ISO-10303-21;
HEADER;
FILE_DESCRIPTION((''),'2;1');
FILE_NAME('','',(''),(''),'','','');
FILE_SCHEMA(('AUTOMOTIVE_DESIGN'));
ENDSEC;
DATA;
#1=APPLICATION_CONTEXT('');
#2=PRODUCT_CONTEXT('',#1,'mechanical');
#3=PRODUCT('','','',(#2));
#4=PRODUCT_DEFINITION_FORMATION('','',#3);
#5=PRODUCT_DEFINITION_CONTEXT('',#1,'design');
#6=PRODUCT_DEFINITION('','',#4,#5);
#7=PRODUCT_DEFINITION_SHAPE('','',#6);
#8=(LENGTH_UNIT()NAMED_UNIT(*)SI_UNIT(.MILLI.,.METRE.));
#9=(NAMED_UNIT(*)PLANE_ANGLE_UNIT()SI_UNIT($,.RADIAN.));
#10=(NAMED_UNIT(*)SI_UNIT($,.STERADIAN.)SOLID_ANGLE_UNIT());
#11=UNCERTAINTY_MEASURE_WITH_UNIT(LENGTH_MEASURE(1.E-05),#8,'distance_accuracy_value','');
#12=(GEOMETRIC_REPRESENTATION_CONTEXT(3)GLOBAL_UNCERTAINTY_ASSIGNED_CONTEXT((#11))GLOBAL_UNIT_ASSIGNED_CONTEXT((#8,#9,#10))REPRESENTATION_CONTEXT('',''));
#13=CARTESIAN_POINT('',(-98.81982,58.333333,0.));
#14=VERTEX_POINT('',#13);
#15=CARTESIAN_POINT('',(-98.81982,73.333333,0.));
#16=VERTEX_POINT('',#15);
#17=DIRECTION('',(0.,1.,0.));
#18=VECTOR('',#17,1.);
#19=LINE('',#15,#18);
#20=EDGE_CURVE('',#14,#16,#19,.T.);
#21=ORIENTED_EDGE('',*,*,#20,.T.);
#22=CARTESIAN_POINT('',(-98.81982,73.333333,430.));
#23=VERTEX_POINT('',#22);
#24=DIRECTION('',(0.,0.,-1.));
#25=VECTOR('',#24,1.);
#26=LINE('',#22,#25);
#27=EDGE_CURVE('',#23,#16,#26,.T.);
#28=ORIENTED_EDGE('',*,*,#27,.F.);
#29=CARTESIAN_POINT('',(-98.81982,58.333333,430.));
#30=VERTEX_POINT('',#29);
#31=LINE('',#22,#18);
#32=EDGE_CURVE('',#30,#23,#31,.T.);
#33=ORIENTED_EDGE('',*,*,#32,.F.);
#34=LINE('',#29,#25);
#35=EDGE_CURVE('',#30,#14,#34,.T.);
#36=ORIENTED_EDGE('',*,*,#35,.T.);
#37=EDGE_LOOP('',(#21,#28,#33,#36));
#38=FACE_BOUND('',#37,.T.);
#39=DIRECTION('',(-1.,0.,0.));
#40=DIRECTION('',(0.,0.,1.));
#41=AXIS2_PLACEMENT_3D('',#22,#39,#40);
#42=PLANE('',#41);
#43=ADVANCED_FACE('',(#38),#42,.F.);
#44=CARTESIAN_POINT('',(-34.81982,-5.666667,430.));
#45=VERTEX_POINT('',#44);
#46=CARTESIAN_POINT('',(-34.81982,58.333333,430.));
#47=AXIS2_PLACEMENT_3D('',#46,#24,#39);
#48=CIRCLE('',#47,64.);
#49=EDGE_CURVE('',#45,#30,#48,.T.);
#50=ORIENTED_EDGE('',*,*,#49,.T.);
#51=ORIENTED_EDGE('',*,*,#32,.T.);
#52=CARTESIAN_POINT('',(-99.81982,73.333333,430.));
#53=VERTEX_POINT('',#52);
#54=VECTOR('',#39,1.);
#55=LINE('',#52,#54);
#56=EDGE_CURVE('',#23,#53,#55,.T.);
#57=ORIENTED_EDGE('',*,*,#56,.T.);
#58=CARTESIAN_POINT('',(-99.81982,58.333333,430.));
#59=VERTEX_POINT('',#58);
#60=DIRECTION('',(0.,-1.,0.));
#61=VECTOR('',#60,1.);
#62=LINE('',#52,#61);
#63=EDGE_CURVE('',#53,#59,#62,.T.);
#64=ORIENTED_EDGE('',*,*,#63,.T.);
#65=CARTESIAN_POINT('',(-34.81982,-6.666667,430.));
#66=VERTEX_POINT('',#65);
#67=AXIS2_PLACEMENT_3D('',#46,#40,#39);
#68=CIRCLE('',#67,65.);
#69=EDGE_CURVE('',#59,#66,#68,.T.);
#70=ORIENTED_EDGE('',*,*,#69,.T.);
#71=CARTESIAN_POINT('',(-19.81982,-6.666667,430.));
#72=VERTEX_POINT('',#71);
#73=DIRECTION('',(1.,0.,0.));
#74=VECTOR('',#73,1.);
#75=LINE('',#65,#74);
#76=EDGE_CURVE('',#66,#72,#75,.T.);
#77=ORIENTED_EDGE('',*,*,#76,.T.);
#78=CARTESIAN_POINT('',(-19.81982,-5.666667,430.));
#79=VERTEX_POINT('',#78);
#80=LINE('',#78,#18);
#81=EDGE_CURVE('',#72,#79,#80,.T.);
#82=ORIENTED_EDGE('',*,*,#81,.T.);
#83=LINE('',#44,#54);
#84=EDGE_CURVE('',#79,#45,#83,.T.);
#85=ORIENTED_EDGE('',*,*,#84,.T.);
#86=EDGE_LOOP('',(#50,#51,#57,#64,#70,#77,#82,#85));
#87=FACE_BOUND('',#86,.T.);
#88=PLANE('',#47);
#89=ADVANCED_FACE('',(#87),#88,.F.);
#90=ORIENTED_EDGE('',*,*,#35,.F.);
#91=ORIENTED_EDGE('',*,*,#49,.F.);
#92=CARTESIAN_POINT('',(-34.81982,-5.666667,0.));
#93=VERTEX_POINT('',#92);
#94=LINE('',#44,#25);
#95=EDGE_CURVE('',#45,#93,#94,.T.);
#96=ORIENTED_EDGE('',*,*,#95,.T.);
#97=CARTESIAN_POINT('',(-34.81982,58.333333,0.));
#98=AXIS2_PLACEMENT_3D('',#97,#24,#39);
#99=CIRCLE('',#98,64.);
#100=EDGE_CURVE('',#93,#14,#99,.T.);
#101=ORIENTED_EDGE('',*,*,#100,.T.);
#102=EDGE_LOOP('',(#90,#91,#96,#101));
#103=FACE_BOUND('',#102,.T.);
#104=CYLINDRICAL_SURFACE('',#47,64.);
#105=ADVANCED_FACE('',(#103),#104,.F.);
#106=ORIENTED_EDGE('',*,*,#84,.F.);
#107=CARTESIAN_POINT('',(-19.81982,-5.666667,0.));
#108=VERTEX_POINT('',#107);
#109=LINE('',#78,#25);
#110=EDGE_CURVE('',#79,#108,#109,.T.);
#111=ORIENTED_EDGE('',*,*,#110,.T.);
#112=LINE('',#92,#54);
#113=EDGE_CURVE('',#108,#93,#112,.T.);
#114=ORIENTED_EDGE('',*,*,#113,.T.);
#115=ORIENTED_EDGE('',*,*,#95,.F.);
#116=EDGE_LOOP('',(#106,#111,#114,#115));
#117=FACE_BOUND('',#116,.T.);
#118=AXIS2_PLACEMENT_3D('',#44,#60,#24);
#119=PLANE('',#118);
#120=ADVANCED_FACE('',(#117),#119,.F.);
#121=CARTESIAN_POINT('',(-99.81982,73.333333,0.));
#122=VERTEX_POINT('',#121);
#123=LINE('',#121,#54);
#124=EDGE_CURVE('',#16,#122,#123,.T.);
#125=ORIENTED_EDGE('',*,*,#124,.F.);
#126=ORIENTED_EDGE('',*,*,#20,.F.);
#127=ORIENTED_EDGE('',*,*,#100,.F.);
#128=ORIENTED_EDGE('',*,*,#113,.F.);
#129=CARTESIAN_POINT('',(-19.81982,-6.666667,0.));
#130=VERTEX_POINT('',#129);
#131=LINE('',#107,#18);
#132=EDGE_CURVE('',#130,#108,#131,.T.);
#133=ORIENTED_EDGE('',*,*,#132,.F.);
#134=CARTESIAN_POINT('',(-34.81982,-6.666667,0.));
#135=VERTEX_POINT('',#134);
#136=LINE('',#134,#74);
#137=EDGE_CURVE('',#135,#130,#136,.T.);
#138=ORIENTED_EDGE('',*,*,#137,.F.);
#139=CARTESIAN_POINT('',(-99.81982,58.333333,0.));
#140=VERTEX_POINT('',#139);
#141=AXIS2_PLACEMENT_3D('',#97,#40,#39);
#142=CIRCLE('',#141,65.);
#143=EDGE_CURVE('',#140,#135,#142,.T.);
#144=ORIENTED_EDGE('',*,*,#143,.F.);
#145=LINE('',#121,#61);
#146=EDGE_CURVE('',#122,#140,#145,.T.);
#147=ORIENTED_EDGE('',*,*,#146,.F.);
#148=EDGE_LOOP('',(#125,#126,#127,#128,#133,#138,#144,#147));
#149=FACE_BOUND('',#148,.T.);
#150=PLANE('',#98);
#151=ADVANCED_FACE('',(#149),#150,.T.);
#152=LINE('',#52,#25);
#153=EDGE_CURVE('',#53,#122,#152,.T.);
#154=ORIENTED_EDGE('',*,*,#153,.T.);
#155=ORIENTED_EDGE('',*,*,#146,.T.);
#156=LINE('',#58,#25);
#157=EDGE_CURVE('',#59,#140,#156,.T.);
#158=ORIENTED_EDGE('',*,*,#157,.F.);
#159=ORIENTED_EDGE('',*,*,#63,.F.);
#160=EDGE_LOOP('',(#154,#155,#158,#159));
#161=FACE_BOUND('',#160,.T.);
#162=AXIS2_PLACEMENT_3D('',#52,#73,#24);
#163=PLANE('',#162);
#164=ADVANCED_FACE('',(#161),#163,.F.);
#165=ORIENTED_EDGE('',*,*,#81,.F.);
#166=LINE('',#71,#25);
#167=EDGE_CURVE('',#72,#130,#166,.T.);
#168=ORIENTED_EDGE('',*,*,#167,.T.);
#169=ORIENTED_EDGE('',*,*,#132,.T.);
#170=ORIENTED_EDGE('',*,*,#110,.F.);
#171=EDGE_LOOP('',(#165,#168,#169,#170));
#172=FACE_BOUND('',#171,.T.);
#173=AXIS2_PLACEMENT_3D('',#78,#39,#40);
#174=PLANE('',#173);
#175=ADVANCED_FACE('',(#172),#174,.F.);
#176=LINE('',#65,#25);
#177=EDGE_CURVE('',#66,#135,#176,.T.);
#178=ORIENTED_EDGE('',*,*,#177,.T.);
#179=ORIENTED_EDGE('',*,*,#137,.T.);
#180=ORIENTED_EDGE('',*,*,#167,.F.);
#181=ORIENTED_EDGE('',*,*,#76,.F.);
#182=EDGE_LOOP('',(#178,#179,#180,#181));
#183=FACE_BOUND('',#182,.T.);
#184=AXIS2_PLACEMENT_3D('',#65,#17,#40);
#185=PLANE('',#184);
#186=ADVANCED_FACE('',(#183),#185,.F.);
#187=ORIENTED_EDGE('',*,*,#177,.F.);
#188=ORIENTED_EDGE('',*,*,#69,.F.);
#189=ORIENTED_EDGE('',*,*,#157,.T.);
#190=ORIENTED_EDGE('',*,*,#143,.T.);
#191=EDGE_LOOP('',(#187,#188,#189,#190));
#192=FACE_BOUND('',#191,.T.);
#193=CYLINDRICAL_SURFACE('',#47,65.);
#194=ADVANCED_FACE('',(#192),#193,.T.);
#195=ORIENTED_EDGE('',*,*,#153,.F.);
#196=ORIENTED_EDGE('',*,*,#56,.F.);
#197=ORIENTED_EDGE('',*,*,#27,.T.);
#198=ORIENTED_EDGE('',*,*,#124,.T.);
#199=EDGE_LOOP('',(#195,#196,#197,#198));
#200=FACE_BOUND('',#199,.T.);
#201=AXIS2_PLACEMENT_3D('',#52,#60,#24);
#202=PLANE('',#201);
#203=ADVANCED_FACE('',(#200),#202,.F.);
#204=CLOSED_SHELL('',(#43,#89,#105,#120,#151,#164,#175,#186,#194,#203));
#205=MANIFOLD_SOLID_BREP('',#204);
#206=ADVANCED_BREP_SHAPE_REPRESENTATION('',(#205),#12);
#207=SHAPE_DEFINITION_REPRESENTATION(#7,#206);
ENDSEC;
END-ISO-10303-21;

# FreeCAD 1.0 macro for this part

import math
import FreeCAD as App
import Part
import Sketcher
Q = App.Units.Quantity

doc = App.newDocument("Part")
body = doc.addObject("PartDesign::Body", "Body")

sketch1 = body.newObject("Sketcher::SketchObject", "Sketch")
sketch1.AttachmentSupport = (doc.getObject("XY_Plane"), [""])
sketch1.MapMode = "FlatFace"
sketch1.addGeometry([
    Part.LineSegment(App.Vector(-99.8, 73.3, 0), App.Vector(-99.8, 58.3, 0)),
    Part.ArcOfCircle(Part.Circle(App.Vector(-34.8, 58.3, 0), App.Vector(0, 0, 1), 65), math.radians(180), math.radians(270)),
    Part.LineSegment(App.Vector(-34.8, -6.7, 0), App.Vector(-19.8, -6.7, 0)),
    Part.LineSegment(App.Vector(-19.8, -6.7, 0), App.Vector(-19.8, -5.7, 0)),
    Part.LineSegment(App.Vector(-19.8, -5.7, 0), App.Vector(-34.8, -5.7, 0)),
    Part.ArcOfCircle(Part.Circle(App.Vector(-34.8, 58.3, 0), App.Vector(0, 0, 1), 64), math.radians(180), math.radians(270)),
    Part.LineSegment(App.Vector(-98.8, 58.3, 0), App.Vector(-98.8, 73.3, 0)),
    Part.LineSegment(App.Vector(-98.8, 73.3, 0), App.Vector(-99.8, 73.3, 0)),
], False)
sketch1.addConstraint([
    Sketcher.Constraint("Tangent", 0, 2, 1, 1),
    Sketcher.Constraint("Tangent", 1, 2, 2, 1),
    Sketcher.Constraint("Coincident", 2, 2, 3, 1),
    Sketcher.Constraint("Coincident", 3, 2, 4, 1),
    Sketcher.Constraint("Tangent", 4, 2, 5, 2),
    Sketcher.Constraint("Tangent", 5, 1, 6, 1),
    Sketcher.Constraint("Coincident", 6, 2, 7, 1),
    Sketcher.Constraint("Coincident", 7, 2, 0, 1),
    Sketcher.Constraint("Vertical", 0),
    Sketcher.Constraint("Horizontal", 2),
    Sketcher.Constraint("Vertical", 3),
    Sketcher.Constraint("Horizontal", 4),
    Sketcher.Constraint("Vertical", 6),
    Sketcher.Constraint("Horizontal", 7),
    Sketcher.Constraint("Coincident", 5, 3, 1, 3),
    Sketcher.Constraint("Equal", 4, 0),
    Sketcher.Constraint("Radius", 1, Q("65 mm")),
    Sketcher.Constraint("Radius", 5, Q("64 mm")),
    Sketcher.Constraint("DistanceX", 2, 1, 2, 2, Q("15 mm")),
    Sketcher.Constraint("DistanceX", 1, 3, -1, 1, Q("34.81982 mm")),
    Sketcher.Constraint("DistanceY", -1, 1, 1, 3, Q("58.333333 mm")),
])
pad1 = body.newObject("PartDesign::Pad", "Pad")
pad1.Profile = sketch1
pad1.Length = 430

doc.recompute()
